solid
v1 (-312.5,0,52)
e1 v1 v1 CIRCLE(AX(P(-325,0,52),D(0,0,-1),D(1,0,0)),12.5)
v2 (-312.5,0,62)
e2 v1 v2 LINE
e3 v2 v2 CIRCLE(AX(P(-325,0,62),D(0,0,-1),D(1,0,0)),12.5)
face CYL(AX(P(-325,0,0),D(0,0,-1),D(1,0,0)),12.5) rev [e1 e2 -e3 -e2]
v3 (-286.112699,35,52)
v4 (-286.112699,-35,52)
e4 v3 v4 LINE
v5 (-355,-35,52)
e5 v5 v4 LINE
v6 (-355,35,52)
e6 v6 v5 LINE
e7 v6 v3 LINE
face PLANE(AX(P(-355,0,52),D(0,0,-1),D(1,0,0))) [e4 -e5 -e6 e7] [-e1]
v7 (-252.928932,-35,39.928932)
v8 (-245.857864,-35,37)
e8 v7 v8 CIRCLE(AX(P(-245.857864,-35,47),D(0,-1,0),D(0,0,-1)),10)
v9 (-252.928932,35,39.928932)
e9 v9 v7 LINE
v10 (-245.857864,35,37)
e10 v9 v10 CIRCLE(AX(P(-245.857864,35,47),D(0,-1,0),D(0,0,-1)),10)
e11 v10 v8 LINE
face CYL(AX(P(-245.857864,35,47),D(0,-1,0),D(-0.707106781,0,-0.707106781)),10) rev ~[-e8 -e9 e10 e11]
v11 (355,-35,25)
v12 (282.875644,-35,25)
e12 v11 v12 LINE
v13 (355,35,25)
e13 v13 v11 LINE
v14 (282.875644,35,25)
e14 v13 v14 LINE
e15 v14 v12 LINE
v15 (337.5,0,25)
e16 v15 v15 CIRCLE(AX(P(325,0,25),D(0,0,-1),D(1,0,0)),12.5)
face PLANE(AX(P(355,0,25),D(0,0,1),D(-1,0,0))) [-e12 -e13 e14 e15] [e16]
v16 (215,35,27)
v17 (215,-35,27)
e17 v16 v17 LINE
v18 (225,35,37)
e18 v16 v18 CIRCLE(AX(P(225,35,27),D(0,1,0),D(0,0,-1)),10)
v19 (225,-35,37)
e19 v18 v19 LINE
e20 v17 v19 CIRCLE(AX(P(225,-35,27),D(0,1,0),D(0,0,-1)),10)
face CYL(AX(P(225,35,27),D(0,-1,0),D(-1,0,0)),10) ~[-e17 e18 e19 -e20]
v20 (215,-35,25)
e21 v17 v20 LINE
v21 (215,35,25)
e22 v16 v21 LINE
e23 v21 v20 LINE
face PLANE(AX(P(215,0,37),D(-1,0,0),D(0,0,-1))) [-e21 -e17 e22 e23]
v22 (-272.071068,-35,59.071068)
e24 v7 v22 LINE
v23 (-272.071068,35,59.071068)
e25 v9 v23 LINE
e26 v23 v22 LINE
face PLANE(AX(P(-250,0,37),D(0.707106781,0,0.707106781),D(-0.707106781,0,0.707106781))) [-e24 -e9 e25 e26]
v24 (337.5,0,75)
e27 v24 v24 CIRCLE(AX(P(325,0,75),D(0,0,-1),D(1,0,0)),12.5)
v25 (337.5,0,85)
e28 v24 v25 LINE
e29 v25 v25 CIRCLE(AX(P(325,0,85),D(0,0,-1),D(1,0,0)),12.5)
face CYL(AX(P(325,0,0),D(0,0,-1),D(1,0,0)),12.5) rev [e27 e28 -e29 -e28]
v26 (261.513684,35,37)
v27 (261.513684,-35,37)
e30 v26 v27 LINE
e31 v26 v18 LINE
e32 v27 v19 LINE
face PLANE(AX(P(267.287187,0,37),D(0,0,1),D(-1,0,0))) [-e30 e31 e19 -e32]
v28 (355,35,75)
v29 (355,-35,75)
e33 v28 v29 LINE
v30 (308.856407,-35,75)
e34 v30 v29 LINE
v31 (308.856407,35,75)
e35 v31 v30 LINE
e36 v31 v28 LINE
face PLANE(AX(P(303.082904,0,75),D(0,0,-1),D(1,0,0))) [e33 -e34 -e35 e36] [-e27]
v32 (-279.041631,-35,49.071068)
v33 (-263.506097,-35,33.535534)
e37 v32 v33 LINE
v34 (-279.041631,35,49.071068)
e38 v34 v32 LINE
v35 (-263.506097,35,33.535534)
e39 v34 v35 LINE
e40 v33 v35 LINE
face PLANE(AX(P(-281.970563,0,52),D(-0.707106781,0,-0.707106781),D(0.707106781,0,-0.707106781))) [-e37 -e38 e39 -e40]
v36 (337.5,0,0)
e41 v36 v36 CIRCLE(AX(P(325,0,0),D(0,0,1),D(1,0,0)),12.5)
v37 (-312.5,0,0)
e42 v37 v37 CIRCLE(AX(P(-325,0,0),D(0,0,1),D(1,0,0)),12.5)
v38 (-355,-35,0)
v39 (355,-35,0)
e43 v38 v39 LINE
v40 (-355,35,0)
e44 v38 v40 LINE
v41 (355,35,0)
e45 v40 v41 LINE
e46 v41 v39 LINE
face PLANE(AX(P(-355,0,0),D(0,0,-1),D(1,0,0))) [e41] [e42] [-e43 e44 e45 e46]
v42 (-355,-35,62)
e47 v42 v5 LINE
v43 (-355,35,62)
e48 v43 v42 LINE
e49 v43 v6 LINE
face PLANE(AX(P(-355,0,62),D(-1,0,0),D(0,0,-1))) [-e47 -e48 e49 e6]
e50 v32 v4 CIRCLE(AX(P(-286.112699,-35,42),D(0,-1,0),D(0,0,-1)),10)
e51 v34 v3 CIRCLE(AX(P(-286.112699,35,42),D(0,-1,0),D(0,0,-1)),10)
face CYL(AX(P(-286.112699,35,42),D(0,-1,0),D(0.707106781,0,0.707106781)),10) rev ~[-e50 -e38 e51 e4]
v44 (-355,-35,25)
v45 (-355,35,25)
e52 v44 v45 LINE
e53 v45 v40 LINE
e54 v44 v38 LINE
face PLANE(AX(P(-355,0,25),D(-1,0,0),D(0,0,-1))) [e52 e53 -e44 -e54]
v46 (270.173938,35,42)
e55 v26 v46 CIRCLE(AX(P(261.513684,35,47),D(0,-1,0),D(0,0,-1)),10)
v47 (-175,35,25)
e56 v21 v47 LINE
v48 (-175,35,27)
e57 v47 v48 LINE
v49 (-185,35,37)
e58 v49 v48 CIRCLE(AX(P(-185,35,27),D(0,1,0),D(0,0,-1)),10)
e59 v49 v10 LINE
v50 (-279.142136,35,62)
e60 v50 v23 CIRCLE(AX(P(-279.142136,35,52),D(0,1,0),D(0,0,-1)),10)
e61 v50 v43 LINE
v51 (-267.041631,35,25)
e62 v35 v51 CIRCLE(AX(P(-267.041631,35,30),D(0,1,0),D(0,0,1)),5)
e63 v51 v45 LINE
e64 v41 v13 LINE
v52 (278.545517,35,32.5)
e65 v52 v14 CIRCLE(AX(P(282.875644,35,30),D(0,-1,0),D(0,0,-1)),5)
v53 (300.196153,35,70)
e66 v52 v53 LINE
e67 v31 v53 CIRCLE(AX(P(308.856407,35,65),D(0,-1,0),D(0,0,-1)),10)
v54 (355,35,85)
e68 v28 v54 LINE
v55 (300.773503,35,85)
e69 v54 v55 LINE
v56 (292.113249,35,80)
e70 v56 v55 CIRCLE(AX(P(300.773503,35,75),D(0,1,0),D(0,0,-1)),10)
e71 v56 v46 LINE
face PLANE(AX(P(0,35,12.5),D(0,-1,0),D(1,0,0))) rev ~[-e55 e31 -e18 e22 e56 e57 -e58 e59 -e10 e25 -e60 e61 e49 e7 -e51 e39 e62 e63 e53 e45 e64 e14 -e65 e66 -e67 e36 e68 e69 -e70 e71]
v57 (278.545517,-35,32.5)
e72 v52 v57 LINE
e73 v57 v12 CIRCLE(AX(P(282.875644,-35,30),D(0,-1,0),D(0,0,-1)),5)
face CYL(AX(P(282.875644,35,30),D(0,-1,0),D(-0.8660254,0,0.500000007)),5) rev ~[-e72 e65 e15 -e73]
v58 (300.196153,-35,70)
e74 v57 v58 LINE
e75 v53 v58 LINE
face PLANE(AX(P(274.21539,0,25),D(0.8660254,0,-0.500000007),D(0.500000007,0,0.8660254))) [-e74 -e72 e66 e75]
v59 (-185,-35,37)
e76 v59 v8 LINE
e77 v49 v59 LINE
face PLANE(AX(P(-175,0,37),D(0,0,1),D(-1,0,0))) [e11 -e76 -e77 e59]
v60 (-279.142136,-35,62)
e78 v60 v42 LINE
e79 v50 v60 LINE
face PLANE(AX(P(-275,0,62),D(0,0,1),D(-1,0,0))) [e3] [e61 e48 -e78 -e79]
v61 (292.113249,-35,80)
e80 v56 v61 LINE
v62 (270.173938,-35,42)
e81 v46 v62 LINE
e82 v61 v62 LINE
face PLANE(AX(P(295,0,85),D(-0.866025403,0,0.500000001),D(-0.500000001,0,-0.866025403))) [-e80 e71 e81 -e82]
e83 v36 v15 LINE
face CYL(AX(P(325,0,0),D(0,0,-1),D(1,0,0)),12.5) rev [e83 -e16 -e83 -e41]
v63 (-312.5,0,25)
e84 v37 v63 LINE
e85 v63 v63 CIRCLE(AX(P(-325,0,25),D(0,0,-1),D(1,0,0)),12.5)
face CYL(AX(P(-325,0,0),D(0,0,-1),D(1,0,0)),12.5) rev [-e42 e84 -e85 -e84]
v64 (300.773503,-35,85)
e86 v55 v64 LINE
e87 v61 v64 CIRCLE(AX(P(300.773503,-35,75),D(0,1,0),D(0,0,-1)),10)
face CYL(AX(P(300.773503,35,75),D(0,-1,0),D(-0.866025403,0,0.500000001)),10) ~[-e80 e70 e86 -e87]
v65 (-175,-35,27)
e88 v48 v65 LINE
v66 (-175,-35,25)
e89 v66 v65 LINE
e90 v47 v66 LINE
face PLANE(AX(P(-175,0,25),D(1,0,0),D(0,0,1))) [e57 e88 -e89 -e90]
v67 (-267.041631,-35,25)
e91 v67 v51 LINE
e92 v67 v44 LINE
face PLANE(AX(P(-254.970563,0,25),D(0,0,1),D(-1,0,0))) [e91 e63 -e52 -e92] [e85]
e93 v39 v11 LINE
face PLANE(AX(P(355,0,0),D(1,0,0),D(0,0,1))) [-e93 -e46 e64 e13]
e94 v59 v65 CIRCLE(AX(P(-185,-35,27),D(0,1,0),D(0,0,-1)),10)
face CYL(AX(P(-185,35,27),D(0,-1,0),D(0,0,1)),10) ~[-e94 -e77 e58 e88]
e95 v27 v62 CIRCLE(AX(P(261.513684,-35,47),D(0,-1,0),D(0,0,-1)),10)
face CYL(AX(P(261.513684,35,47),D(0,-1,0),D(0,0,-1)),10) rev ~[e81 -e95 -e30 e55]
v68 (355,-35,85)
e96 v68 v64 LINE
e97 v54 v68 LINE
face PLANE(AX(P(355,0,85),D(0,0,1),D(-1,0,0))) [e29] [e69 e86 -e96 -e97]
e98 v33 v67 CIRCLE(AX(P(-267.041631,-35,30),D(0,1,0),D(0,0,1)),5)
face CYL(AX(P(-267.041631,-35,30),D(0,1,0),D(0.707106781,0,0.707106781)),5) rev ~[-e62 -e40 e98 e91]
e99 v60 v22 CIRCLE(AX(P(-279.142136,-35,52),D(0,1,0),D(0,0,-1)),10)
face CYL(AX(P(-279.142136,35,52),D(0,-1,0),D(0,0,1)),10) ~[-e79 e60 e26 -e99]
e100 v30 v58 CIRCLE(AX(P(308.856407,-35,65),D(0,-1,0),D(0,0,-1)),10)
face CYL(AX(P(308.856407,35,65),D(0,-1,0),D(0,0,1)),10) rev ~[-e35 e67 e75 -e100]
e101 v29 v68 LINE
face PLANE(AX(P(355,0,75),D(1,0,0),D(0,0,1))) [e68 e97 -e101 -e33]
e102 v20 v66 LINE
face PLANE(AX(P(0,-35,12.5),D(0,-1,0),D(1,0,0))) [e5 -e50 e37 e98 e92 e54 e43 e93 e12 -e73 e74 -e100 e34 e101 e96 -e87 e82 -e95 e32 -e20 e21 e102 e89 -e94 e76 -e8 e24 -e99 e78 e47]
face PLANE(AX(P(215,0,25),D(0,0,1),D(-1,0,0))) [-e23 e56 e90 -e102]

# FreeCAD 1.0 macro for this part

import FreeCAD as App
import Part
import Sketcher
Q = App.Units.Quantity


def edges_at(feature, points):
    """Names of the edges that pass closest to the given points."""
    edges = feature.Shape.Edges
    near = lambda p: min(range(len(edges)), key=lambda i: edges[i].distToShape(Part.Vertex(*p))[0])
    return sorted({f"Edge{near(p) + 1}" for p in points})

doc = App.newDocument("Part")
body = doc.addObject("PartDesign::Body", "Body")

sketch1 = body.newObject("Sketcher::SketchObject", "Sketch")
sketch1.AttachmentSupport = (doc.getObject("XZ_Plane"), [""])
sketch1.MapMode = "FlatFace"
sketch1.addGeometry([
    Part.LineSegment(App.Vector(-355, 0, 0), App.Vector(355, 0, 0)),
    Part.LineSegment(App.Vector(355, 0, 0), App.Vector(355, 25, 0)),
    Part.LineSegment(App.Vector(355, 25, 0), App.Vector(274, 25, 0)),
    Part.LineSegment(App.Vector(274, 25, 0), App.Vector(303, 75, 0)),
    Part.LineSegment(App.Vector(303, 75, 0), App.Vector(355, 75, 0)),
    Part.LineSegment(App.Vector(355, 75, 0), App.Vector(355, 85, 0)),
    Part.LineSegment(App.Vector(355, 85, 0), App.Vector(295, 85, 0)),
    Part.LineSegment(App.Vector(295, 85, 0), App.Vector(267, 37, 0)),
    Part.LineSegment(App.Vector(267, 37, 0), App.Vector(215, 37, 0)),
    Part.LineSegment(App.Vector(215, 37, 0), App.Vector(215, 25, 0)),
    Part.LineSegment(App.Vector(215, 25, 0), App.Vector(-175, 25, 0)),
    Part.LineSegment(App.Vector(-175, 25, 0), App.Vector(-175, 37, 0)),
    Part.LineSegment(App.Vector(-175, 37, 0), App.Vector(-250, 37, 0)),
    Part.LineSegment(App.Vector(-250, 37, 0), App.Vector(-275, 62, 0)),
    Part.LineSegment(App.Vector(-275, 62, 0), App.Vector(-355, 62, 0)),
    Part.LineSegment(App.Vector(-355, 62, 0), App.Vector(-355, 52, 0)),
    Part.LineSegment(App.Vector(-355, 52, 0), App.Vector(-282, 52, 0)),
    Part.LineSegment(App.Vector(-282, 52, 0), App.Vector(-255, 25, 0)),
    Part.LineSegment(App.Vector(-255, 25, 0), App.Vector(-355, 25, 0)),
    Part.LineSegment(App.Vector(-355, 25, 0), App.Vector(-355, 0, 0)),
], False)
sketch1.addConstraint([
    Sketcher.Constraint("Coincident", 0, 2, 1, 1),
    Sketcher.Constraint("Coincident", 1, 2, 2, 1),
    Sketcher.Constraint("Coincident", 2, 2, 3, 1),
    Sketcher.Constraint("Coincident", 3, 2, 4, 1),
    Sketcher.Constraint("Coincident", 4, 2, 5, 1),
    Sketcher.Constraint("Coincident", 5, 2, 6, 1),
    Sketcher.Constraint("Coincident", 6, 2, 7, 1),
    Sketcher.Constraint("Coincident", 7, 2, 8, 1),
    Sketcher.Constraint("Coincident", 8, 2, 9, 1),
    Sketcher.Constraint("Coincident", 9, 2, 10, 1),
    Sketcher.Constraint("Coincident", 10, 2, 11, 1),
    Sketcher.Constraint("Coincident", 11, 2, 12, 1),
    Sketcher.Constraint("Coincident", 12, 2, 13, 1),
    Sketcher.Constraint("Coincident", 13, 2, 14, 1),
    Sketcher.Constraint("Coincident", 14, 2, 15, 1),
    Sketcher.Constraint("Coincident", 15, 2, 16, 1),
    Sketcher.Constraint("Coincident", 16, 2, 17, 1),
    Sketcher.Constraint("Coincident", 17, 2, 18, 1),
    Sketcher.Constraint("Coincident", 18, 2, 19, 1),
    Sketcher.Constraint("Coincident", 19, 2, 0, 1),
    Sketcher.Constraint("Horizontal", 0),
    Sketcher.Constraint("Vertical", 1),
    Sketcher.Constraint("Horizontal", 2),
    Sketcher.Constraint("Horizontal", 4),
    Sketcher.Constraint("Vertical", 5),
    Sketcher.Constraint("Horizontal", 6),
    Sketcher.Constraint("Horizontal", 8),
    Sketcher.Constraint("Vertical", 9),
    Sketcher.Constraint("Horizontal", 10),
    Sketcher.Constraint("Vertical", 11),
    Sketcher.Constraint("Horizontal", 12),
    Sketcher.Constraint("Horizontal", 14),
    Sketcher.Constraint("Vertical", 15),
    Sketcher.Constraint("Horizontal", 16),
    Sketcher.Constraint("Horizontal", 18),
    Sketcher.Constraint("Vertical", 19),
    Sketcher.Constraint("Symmetric", 0, 2, 19, 2, -1, 1),
    Sketcher.Constraint("Parallel", 3, 7),
    Sketcher.Constraint("Parallel", 13, 17),
    Sketcher.Constraint("Horizontal", 2, 2, 9, 2),
    Sketcher.Constraint("Horizontal", 8, 2, 11, 2),
    Sketcher.Constraint("Horizontal", 10, 2, 17, 2),
    Sketcher.Constraint("Vertical", 1, 2, 4, 2),
    Sketcher.Constraint("Vertical", 15, 2, 18, 2),
    Sketcher.Constraint("Equal", 5, 15),
    Sketcher.Constraint("DistanceX", 0, 1, 0, 2, Q("710 mm")),
    Sketcher.Constraint("DistanceX", 6, 2, 6, 1, Q("60 mm")),
    Sketcher.Constraint("DistanceX", 10, 2, 10, 1, Q("390 mm")),
    Sketcher.Constraint("DistanceX", 12, 2, 12, 1, Q("75 mm")),
    Sketcher.Constraint("DistanceX", 14, 2, 14, 1, Q("80 mm")),
    Sketcher.Constraint("DistanceY", 1, 1, 1, 2, Q("25 mm")),
    Sketcher.Constraint("DistanceY", 5, 1, 5, 2, Q("10 mm")),
    Sketcher.Constraint("DistanceY", 9, 2, 9, 1, Q("12 mm")),
    Sketcher.Constraint("Angle", 3, Q("60 deg")),
    Sketcher.Constraint("Angle", 13, Q("135 deg")),
    Sketcher.Constraint("DistanceY", -1, 1, 3, 2, Q("75 mm")),
    Sketcher.Constraint("DistanceX", -1, 1, 8, 2, Q("215 mm")),
    Sketcher.Constraint("DistanceX", 2, 2, 2, 1, Q("80.78461 mm")),
    Sketcher.Constraint("DistanceX", 16, 1, 16, 2, Q("73.029437 mm")),
])
pad1 = body.newObject("PartDesign::Pad", "Pad")
pad1.Profile = sketch1
pad1.Length = 70
pad1.Midplane = True
doc.recompute()

fillet = body.newObject("PartDesign::Fillet", "Fillet")
fillet.Base = (pad1, edges_at(pad1, [
    (-175, 0, 37),
    (-250, 0, 37),
    (-281.971, 0, 52),
    (-275, 0, 62),
    (267.287, 0, 37),
    (295, 0, 85),
    (303.083, 0, 75),
    (215, 0, 37),
]))
fillet.Radius = 10
doc.recompute()

fillet2 = body.newObject("PartDesign::Fillet", "Fillet001")
fillet2.Base = (fillet, edges_at(fillet, [(-254.971, 0, 25), (274.215, 0, 25)]))
fillet2.Radius = 5

sketch2 = body.newObject("Sketcher::SketchObject", "Sketch001")
sketch2.AttachmentSupport = (doc.getObject("XY_Plane"), [""])
sketch2.MapMode = "FlatFace"
sketch2.addGeometry([
    Part.Circle(App.Vector(-325, 0, 0), App.Vector(0, 0, 1), 12),
    Part.Circle(App.Vector(325, 0, 0), App.Vector(0, 0, 1), 12),
], False)
sketch2.addConstraint([
    Sketcher.Constraint("Equal", 0, 1),
    Sketcher.Constraint("Symmetric", 0, 3, 1, 3, -1, 1),
    Sketcher.Constraint("PointOnObject", 0, 3, -1),
    Sketcher.Constraint("Diameter", 0, Q("25 mm")),
    Sketcher.Constraint("DistanceX", 0, 3, -1, 1, Q("325 mm")),
])
pocket1 = body.newObject("PartDesign::Pocket", "Pocket")
pocket1.Profile = sketch2
pocket1.Type = "ThroughAll"
pocket1.Reversed = True

doc.recompute()
